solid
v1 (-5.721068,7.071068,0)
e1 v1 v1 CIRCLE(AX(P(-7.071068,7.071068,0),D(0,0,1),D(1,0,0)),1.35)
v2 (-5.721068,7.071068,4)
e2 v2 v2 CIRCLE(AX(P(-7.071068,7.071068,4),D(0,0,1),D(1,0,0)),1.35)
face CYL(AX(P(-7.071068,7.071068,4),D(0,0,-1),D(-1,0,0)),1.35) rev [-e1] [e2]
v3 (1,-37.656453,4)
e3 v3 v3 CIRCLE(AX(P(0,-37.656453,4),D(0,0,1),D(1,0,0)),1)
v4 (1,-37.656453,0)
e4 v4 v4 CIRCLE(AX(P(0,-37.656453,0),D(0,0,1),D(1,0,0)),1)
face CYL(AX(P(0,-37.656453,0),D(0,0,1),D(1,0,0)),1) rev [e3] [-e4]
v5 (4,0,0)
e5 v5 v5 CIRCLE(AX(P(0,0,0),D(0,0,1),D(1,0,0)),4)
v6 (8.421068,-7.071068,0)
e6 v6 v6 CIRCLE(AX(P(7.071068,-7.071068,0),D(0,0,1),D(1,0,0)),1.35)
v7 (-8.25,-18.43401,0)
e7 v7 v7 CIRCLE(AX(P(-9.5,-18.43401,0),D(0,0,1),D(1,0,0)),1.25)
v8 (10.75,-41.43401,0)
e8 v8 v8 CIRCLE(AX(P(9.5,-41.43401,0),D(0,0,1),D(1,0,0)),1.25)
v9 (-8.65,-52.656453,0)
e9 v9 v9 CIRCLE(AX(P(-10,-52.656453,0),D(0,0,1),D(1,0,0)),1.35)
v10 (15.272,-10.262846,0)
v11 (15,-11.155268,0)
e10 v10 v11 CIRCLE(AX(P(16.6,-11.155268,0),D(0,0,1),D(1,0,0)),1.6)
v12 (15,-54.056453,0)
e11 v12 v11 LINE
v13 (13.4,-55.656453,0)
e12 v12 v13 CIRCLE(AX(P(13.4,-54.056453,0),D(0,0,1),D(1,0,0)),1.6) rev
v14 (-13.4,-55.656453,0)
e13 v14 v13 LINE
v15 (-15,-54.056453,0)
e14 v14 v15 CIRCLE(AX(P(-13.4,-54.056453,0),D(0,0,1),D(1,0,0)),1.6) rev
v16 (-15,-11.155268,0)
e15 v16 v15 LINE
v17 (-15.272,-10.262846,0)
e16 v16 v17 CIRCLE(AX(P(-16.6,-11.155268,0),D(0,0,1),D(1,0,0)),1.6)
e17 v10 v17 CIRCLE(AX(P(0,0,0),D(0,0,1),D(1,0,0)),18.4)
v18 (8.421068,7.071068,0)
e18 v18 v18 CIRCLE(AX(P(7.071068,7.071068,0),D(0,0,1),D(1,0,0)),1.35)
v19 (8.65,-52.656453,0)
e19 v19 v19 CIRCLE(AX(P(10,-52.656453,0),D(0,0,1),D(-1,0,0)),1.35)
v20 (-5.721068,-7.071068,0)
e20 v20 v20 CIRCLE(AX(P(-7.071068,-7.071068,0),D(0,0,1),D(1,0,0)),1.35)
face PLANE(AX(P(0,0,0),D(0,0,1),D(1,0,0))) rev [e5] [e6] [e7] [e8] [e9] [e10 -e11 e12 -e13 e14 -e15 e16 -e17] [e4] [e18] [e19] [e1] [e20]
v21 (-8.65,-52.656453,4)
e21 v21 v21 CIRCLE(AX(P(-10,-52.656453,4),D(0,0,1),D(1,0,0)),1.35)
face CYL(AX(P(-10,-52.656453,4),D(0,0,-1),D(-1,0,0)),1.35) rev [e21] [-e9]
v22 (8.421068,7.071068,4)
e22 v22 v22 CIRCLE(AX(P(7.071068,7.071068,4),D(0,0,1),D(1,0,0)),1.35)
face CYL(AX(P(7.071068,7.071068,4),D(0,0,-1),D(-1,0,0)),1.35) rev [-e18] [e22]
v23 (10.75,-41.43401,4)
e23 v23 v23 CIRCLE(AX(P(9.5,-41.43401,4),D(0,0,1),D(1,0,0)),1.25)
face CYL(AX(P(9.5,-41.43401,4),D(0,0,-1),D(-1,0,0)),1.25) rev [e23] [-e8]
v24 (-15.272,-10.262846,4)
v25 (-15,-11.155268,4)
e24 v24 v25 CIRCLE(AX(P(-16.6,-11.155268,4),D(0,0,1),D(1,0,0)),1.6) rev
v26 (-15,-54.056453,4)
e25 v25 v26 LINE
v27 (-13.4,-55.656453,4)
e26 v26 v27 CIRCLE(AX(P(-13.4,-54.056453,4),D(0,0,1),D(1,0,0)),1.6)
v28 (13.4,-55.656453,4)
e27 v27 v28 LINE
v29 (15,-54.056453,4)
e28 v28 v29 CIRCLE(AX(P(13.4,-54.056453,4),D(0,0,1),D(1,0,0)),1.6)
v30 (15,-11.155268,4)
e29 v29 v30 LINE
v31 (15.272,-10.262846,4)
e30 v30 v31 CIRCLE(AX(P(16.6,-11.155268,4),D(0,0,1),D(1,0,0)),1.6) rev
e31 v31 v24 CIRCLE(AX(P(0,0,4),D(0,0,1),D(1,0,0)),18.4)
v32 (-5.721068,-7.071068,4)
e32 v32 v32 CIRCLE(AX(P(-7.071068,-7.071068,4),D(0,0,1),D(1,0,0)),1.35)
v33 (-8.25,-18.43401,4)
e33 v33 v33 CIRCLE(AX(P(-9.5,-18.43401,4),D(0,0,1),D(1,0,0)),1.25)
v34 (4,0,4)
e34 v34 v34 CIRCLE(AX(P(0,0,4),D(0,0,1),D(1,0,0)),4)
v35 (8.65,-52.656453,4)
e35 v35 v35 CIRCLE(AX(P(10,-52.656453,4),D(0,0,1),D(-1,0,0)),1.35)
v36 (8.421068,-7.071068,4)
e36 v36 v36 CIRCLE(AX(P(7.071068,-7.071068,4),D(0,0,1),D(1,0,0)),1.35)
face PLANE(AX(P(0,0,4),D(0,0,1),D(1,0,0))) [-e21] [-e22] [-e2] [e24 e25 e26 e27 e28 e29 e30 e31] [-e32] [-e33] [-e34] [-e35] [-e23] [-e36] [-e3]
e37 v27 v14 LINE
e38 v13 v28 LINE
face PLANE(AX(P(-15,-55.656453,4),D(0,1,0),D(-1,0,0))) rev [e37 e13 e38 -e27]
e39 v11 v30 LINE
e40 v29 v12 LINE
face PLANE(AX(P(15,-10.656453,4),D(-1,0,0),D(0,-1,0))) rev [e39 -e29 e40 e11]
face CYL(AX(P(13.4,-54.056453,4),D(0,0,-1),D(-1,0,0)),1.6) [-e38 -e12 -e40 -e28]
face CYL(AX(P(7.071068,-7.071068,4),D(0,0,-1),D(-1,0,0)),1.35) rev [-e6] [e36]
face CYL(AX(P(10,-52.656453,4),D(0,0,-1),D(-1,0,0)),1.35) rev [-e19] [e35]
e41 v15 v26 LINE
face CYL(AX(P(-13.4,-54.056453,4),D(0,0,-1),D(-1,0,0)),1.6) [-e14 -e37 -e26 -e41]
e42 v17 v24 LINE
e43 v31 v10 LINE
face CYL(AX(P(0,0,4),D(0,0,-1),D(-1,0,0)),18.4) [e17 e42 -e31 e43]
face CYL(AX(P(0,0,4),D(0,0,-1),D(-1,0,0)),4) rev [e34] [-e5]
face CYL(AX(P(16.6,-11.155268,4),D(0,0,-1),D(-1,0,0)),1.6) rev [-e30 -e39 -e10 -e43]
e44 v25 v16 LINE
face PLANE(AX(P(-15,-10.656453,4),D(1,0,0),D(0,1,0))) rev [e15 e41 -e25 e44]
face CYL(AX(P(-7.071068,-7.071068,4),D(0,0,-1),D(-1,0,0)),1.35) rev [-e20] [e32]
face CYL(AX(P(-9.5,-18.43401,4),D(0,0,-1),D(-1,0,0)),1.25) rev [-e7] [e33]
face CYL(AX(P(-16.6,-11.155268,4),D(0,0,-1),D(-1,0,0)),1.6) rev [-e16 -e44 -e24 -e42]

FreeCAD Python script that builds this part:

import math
import FreeCAD as App
import Part
import Sketcher
from FreeCAD import Vector
Q = App.Units.Quantity


def edges_at(feature, points):
    """Names of the edges that pass closest to the given points."""
    edges = feature.Shape.Edges
    near = lambda p: min(range(len(edges)), key=lambda i: edges[i].distToShape(Part.Vertex(*p))[0])
    return sorted({f"Edge{near(p) + 1}" for p in points})

doc = App.newDocument("Part")
body = doc.addObject("PartDesign::Body", "Body")

# Sketch on XY plane
sketch1 = doc.addObject("Sketcher::SketchObject", "Sketch")
body.addObject(sketch1)
sketch1.AttachmentSupport = (doc.XY_Plane, [""])
sketch1.MapMode = "FlatFace"
sketch1.addGeometry([
    Part.LineSegment(Vector(-15, -10.7, 0), Vector(-15, -55.7, 0)),  # 0
    Part.LineSegment(Vector(-15, -55.7, 0), Vector(15, -55.7, 0)),  # 1
    Part.LineSegment(Vector(15, -55.7, 0), Vector(15, -10.7, 0)),  # 2
    Part.ArcOfCircle(Part.Circle(Vector(0, 0, 0), Vector(0, 0, 1), 18.4), math.radians(-35), math.radians(215)),  # 3
    Part.Circle(Vector(-10, -52.7, 0), Vector(0, 0, 1), 1.4),  # 4
    Part.Circle(Vector(10, -52.7, 0), Vector(0, 0, 1), 1.4),  # 5
    Part.Circle(Vector(9.5, -41.4, 0), Vector(0, 0, 1), 1.2),  # 6
    Part.Circle(Vector(-9.5, -18.4, 0), Vector(0, 0, 1), 1.2),  # 7
    Part.Circle(Vector(-7.1, -7.1, 0), Vector(0, 0, 1), 1.4),  # 8
    Part.Circle(Vector(-7.1, 7.1, 0), Vector(0, 0, 1), 1.4),  # 9
    Part.Circle(Vector(0, 0, 0), Vector(0, 0, 1), 4),  # 10
    Part.Circle(Vector(7.1, -7.1, 0), Vector(0, 0, 1), 1.4),  # 11
    Part.Circle(Vector(7.1, 7.1, 0), Vector(0, 0, 1), 1.4),  # 12
], False)
sketch1.addConstraint([
    Sketcher.Constraint("Coincident", 0, 2, 1, 1),
    Sketcher.Constraint("Coincident", 1, 2, 2, 1),
    Sketcher.Constraint("Coincident", 2, 2, 3, 1),
    Sketcher.Constraint("Coincident", 3, 2, 0, 1),
    Sketcher.Constraint("Vertical", 0),
    Sketcher.Constraint("Horizontal", 1),
    Sketcher.Constraint("Vertical", 2),
    Sketcher.Constraint("Coincident", 3, 3, -1, 1),
    Sketcher.Constraint("Coincident", 10, 3, -1, 1),
    Sketcher.Constraint("Equal", 4, 5),
    Sketcher.Constraint("Equal", 6, 7),
    Sketcher.Constraint("Equal", 5, 8),
    Sketcher.Constraint("Equal", 8, 9),
    Sketcher.Constraint("Equal", 9, 11),
    Sketcher.Constraint("Equal", 11, 12),
    Sketcher.Constraint("Symmetric", 9, 3, 11, 3, -1, 1),
    Sketcher.Constraint("Symmetric", 8, 3, 12, 3, -1, 1),
    Sketcher.Constraint("Symmetric", 4, 3, 5, 3, -2),
    Sketcher.Constraint("Symmetric", 8, 3, 11, 3, -2),
    Sketcher.Constraint("Horizontal", 2, 2, 3, 2),
    Sketcher.Constraint("Diameter", 10, Q("8 mm")),
    Sketcher.Constraint("Diameter", 4, Q("2.7 mm")),
    Sketcher.Constraint("Diameter", 6, Q("2.5 mm")),
    Sketcher.Constraint("Radius", 3, Q("18.4 mm")),
    Sketcher.Constraint("DistanceX", 1, 1, 1, 2, Q("30 mm")),
    Sketcher.Constraint("DistanceY", 0, 2, 0, 1, Q("45 mm")),
    Sketcher.Constraint("DistanceX", 4, 3, -1, 1, Q("10 mm")),
    Sketcher.Constraint("DistanceX", 7, 3, 6, 3, Q("19 mm")),
    Sketcher.Constraint("DistanceY", 6, 3, 7, 3, Q("23 mm")),
    Sketcher.Constraint("DistanceY", 0, 2, 4, 3, Q("3 mm")),
    Sketcher.Constraint("DistanceX", -1, 1, 6, 3, Q("9.5 mm")),
    Sketcher.Constraint("DistanceY", 6, 3, -1, 1, Q("41.43401 mm")),
    Sketcher.Constraint("DistanceY", 4, 3, 9, 3, Q("59.727521 mm")),
    Sketcher.Constraint("DistanceX", 8, 3, -1, 1, Q("7.071068 mm")),
])
pad1 = doc.addObject("PartDesign::Pad", "Pad")
body.addObject(pad1)
pad1.Profile = sketch1
pad1.Length = 4
doc.recompute()

fillet = doc.addObject("PartDesign::Fillet", "Fillet")
body.addObject(fillet)
fillet.Base = (pad1, edges_at(pad1, [
    (15, -10.656, 2),
    (15, -55.656, 2),
    (-15, -55.656, 2),
    (-15, -10.656, 2),
]))
fillet.Radius = 1.6

# Sketch on XY plane
sketch2 = doc.addObject("Sketcher::SketchObject", "Sketch001")
body.addObject(sketch2)
sketch2.AttachmentSupport = (doc.XY_Plane, [""])
sketch2.MapMode = "FlatFace"
sketch2.AttachmentOffset = App.Placement(Vector(0, 0, 4), App.Rotation())
sketch2.addGeometry(Part.Circle(Vector(0, -37.7, 0), Vector(0, 0, 1), 1), False)
sketch2.addConstraint([
    Sketcher.Constraint("PointOnObject", 0, 3, -2),
    Sketcher.Constraint("Diameter", 0, Q("2 mm")),
    Sketcher.Constraint("DistanceY", 0, 3, -1, 1, Q("37.656453 mm")),
])
pocket1 = doc.addObject("PartDesign::Pocket", "Pocket")
body.addObject(pocket1)
pocket1.Profile = sketch2
pocket1.Length = 4

doc.recompute()
